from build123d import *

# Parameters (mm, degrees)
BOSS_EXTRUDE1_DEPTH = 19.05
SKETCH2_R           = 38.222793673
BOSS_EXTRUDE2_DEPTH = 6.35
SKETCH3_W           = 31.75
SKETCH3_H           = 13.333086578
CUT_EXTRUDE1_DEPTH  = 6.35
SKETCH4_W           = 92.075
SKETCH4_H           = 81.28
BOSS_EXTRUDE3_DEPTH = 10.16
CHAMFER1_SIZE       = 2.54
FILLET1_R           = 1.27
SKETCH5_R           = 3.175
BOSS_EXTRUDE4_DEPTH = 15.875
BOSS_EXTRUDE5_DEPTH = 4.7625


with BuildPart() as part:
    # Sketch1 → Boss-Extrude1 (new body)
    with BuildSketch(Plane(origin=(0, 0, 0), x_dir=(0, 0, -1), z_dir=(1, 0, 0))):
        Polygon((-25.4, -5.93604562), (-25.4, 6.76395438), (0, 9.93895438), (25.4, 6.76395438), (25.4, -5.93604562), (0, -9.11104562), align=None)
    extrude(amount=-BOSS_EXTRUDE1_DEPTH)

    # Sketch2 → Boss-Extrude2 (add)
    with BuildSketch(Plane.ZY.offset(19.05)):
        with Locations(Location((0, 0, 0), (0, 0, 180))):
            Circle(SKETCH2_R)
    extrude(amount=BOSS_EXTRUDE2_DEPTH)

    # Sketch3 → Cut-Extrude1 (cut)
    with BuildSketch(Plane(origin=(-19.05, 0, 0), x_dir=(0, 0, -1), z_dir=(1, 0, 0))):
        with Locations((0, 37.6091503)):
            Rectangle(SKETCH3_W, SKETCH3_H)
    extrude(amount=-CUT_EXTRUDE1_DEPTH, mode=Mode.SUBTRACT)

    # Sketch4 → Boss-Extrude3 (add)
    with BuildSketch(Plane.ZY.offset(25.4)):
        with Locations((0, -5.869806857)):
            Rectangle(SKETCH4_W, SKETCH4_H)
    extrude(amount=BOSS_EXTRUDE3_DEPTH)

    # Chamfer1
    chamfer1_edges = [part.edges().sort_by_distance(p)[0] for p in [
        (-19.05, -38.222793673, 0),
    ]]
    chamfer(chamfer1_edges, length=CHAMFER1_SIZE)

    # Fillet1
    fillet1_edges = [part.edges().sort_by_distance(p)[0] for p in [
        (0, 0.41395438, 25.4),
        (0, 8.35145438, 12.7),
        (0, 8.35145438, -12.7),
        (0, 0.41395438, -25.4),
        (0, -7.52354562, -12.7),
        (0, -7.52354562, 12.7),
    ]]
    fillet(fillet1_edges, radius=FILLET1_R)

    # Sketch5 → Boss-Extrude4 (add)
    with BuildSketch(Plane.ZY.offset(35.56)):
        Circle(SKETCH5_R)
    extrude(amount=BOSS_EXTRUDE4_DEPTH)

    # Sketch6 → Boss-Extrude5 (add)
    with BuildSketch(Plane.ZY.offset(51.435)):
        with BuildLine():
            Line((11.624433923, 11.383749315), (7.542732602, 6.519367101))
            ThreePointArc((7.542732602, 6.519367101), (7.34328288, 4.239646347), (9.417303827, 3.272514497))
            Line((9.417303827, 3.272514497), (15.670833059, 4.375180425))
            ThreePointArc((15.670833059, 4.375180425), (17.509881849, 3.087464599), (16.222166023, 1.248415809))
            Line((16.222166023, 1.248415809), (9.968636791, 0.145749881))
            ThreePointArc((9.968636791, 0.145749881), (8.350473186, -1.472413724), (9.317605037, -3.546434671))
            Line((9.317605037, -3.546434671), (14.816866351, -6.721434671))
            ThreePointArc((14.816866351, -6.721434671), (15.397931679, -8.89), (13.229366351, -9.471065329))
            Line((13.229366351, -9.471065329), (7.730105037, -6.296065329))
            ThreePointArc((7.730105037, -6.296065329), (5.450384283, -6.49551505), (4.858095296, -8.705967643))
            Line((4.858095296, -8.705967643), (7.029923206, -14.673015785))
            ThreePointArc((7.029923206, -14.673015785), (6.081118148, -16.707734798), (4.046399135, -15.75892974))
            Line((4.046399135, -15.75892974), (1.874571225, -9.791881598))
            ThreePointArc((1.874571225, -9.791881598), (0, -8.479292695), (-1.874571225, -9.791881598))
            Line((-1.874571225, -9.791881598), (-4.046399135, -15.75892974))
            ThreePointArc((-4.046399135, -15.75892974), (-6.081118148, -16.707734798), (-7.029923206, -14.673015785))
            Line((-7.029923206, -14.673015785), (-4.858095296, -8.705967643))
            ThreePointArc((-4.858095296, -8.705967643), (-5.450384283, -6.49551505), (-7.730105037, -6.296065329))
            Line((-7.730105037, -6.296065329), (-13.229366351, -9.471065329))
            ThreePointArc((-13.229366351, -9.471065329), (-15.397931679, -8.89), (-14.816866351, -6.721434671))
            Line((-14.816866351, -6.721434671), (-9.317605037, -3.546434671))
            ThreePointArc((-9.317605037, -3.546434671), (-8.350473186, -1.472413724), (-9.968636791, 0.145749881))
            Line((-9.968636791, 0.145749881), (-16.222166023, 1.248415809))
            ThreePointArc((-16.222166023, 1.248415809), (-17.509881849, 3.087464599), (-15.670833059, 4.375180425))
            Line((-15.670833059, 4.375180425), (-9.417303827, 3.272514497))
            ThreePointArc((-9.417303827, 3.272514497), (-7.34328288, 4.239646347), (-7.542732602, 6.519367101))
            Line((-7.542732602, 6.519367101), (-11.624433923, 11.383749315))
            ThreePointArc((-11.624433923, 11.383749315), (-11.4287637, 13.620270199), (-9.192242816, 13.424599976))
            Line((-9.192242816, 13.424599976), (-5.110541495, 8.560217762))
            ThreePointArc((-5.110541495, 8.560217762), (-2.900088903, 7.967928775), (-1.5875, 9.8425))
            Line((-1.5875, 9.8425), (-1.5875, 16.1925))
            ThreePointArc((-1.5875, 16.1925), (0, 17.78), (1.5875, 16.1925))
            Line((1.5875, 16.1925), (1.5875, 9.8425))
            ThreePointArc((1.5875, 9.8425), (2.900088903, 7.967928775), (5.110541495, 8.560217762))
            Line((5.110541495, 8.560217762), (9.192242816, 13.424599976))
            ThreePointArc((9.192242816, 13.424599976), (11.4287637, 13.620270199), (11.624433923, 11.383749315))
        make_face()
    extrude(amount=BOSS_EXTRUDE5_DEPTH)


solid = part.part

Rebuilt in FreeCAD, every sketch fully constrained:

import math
import FreeCAD as App
import Part
import Sketcher

V = App.Vector
Q = App.Units.Quantity


def edges_at(feature, points):
    """Names of the edges that pass closest to the given points."""
    edges = feature.Shape.Edges
    near = lambda p: min(range(len(edges)), key=lambda i: edges[i].distToShape(Part.Vertex(*p))[0])
    return sorted({f"Edge{near(p) + 1}" for p in points})


def add_polygon(sketch, points):
    """Adds a closed chain of lines whose ends are joined by coincident constraints."""
    first, n = sketch.GeometryCount, len(points)
    for a, b in zip(points, points[1:] + points[:1]):
        sketch.addGeometry(Part.LineSegment(App.Vector(*a, 0), App.Vector(*b, 0)), False)
    for i in range(n):
        sketch.addConstraint(Sketcher.Constraint("Coincident", first + i, 2, first + (i + 1) % n, 1))

doc = App.newDocument("Part")
body = doc.addObject("PartDesign::Body", "Body")

# Sketch on YZ plane
sketch1 = body.newObject("Sketcher::SketchObject", "Sketch")
sketch1.AttachmentSupport = (doc.getObject("YZ_Plane"), [""])
sketch1.MapMode = "FlatFace"
add_polygon(sketch1, [(7, 25), (-6, 25), (-9, 0), (-6, -25), (7, -25), (10, 0)])  # lines 0-5
sketch1.addConstraint([
    Sketcher.Constraint("Horizontal", 0),
    Sketcher.Constraint("Horizontal", 3),
    Sketcher.Constraint("Symmetric", 0, 2, 2, 2, -1),
    Sketcher.Constraint("PointOnObject", 1, 2, -1),
    Sketcher.Constraint("PointOnObject", 4, 2, -1),
    Sketcher.Constraint("Parallel", 1, 4),
    Sketcher.Constraint("Parallel", 2, 5),
    Sketcher.Constraint("DistanceX", 0, 2, 0, 1, Q("0.5 in")),
    Sketcher.Constraint("DistanceY", -1, 1, 0, 2, Q("1 in")),
    Sketcher.Constraint("DistanceX", 1, 2, 4, 2, Q("0.75 in")),
    Sketcher.Constraint("DistanceX", 0, 2, -1, 1, 5.936046),
])
pad1 = body.newObject("PartDesign::Pad", "Pad")
pad1.Profile = sketch1
pad1.Length = Q("0.75 in")
pad1.Reversed = True

# Sketch on YZ plane
sketch2 = body.newObject("Sketcher::SketchObject", "Sketch001")
sketch2.AttachmentSupport = (doc.getObject("YZ_Plane"), [""])
sketch2.MapMode = "FlatFace"
sketch2.AttachmentOffset = App.Placement(V(0, 0, -0.75 * 25.4), App.Rotation())
sketch2.addGeometry(Part.Circle(V(0, 0, 0), V(0, 0, 1), 38), False)
sketch2.addConstraint([
    Sketcher.Constraint("Coincident", 0, 3, -1, 1),
    Sketcher.Constraint("Diameter", 0, 76.445587),
])
pad2 = body.newObject("PartDesign::Pad", "Pad001")
pad2.Profile = sketch2
pad2.Length = Q("0.25 in")
pad2.Reversed = True

# Sketch on YZ plane
sketch3 = body.newObject("Sketcher::SketchObject", "Sketch002")
sketch3.AttachmentSupport = (doc.getObject("YZ_Plane"), [""])
sketch3.MapMode = "FlatFace"
sketch3.AttachmentOffset = App.Placement(V(0, 0, -0.75 * 25.4), App.Rotation())
add_polygon(sketch3, [(44, 16), (31, 16), (31, -16), (44, -16)])  # lines 0-3
sketch3.addConstraint([
    Sketcher.Constraint("Horizontal", 0),
    Sketcher.Constraint("Vertical", 1),
    Sketcher.Constraint("Horizontal", 2),
    Sketcher.Constraint("Vertical", 3),
    Sketcher.Constraint("DistanceY", 1, 2, 1, 1, Q("1.25 in")),
    Sketcher.Constraint("DistanceY", -1, 1, 0, 2, Q("0.625 in")),
    Sketcher.Constraint("DistanceX", 0, 2, 0, 1, 13.333087),
    Sketcher.Constraint("DistanceX", -1, 1, 0, 2, 30.942607),
])
pocket1 = body.newObject("PartDesign::Pocket", "Pocket")
pocket1.Profile = sketch3
pocket1.Length = Q("0.25 in")

# Sketch on YZ plane
sketch4 = body.newObject("Sketcher::SketchObject", "Sketch003")
sketch4.AttachmentSupport = (doc.getObject("YZ_Plane"), [""])
sketch4.MapMode = "FlatFace"
sketch4.AttachmentOffset = App.Placement(V(0, 0, -1 * 25.4), App.Rotation())
add_polygon(sketch4, [(35, -46), (-47, -46), (-47, 46), (35, 46)])  # lines 0-3
sketch4.addConstraint([
    Sketcher.Constraint("Horizontal", 0),
    Sketcher.Constraint("Vertical", 1),
    Sketcher.Constraint("Horizontal", 2),
    Sketcher.Constraint("Vertical", 3),
    Sketcher.Constraint("DistanceX", 0, 2, 0, 1, Q("3.2 in")),
    Sketcher.Constraint("DistanceY", 1, 1, 1, 2, Q("3.625 in")),
    Sketcher.Constraint("DistanceY", 0, 2, -1, 1, Q("1.8125 in")),
    Sketcher.Constraint("DistanceX", 0, 2, -1, 1, 46.509807),
])
pad3 = body.newObject("PartDesign::Pad", "Pad002")
pad3.Profile = sketch4
pad3.Length = Q("0.4 in")
pad3.Reversed = True
doc.recompute()

chamfer = body.newObject("PartDesign::Chamfer", "Chamfer")
chamfer.Base = (pad3, edges_at(pad3, [(-19.05, -38.223, 0)]))
chamfer.Size = Q("0.1 in")
doc.recompute()

fillet = body.newObject("PartDesign::Fillet", "Fillet")
fillet.Base = (chamfer, edges_at(chamfer, [
    (0, 0.414, 25.4),
    (0, 8.351, 12.7),
    (0, 8.351, -12.7),
    (0, 0.414, -25.4),
    (0, -7.524, -12.7),
    (0, -7.524, 12.7),
]))
fillet.Radius = Q("0.05 in")

# Sketch on YZ plane
sketch5 = body.newObject("Sketcher::SketchObject", "Sketch004")
sketch5.AttachmentSupport = (doc.getObject("YZ_Plane"), [""])
sketch5.MapMode = "FlatFace"
sketch5.AttachmentOffset = App.Placement(V(0, 0, -1.4 * 25.4), App.Rotation())
sketch5.addGeometry(Part.Circle(V(0, 0, 0), V(0, 0, 1), 3.2), False)
sketch5.addConstraint([
    Sketcher.Constraint("Coincident", 0, 3, -1, 1),
    Sketcher.Constraint("Diameter", 0, Q("0.25 in")),
])
pad4 = body.newObject("PartDesign::Pad", "Pad003")
pad4.Profile = sketch5
pad4.Length = Q("0.625 in")
pad4.Reversed = True

# Sketch on YZ plane
sketch6 = body.newObject("Sketcher::SketchObject", "Sketch005")
sketch6.AttachmentSupport = (doc.getObject("YZ_Plane"), [""])
sketch6.MapMode = "FlatFace"
sketch6.AttachmentOffset = App.Placement(V(0, 0, -2.025 * 25.4), App.Rotation())
sketch6.addGeometry([
    Part.LineSegment(V(6.5, 7.5, 0), V(11.4, 11.6, 0)),  # 0
    Part.ArcOfCircle(Part.Circle(V(12.4, 10.4, 0), V(0, 0, 1), 1.6), math.radians(-50), math.radians(130)),  # 1
    Part.LineSegment(V(13.4, 9.2, 0), V(8.6, 5.1, 0)),  # 2
    Part.ArcOfCircle(Part.Circle(V(9.8, 3.6, 0), V(0, 0, 1), 2), math.radians(130), math.radians(270)),  # 3
    Part.LineSegment(V(9.8, 1.6, 0), V(16.2, 1.6, 0)),  # 4
    Part.ArcOfCircle(Part.Circle(V(16.2, 0, 0), V(0, 0, 1), 1.6), math.radians(-90), math.radians(90)),  # 5
    Part.LineSegment(V(16.2, -1.6, 0), V(9.8, -1.6, 0)),  # 6
    Part.ArcOfCircle(Part.Circle(V(9.8, -3.6, 0), V(0, 0, 1), 2), math.radians(90), math.radians(230)),  # 7
    Part.LineSegment(V(8.6, -5.1, 0), V(13.4, -9.2, 0)),  # 8
    Part.ArcOfCircle(Part.Circle(V(12.4, -10.4, 0), V(0, 0, 1), 1.6), math.radians(-130), math.radians(50)),  # 9
    Part.LineSegment(V(11.4, -11.6, 0), V(6.5, -7.5, 0)),  # 10
    Part.ArcOfCircle(Part.Circle(V(5.2, -9.1, 0), V(0, 0, 1), 2), math.radians(50), math.radians(190)),  # 11
    Part.LineSegment(V(3.3, -9.4, 0), V(4.4, -15.7, 0)),  # 12
    Part.ArcOfCircle(Part.Circle(V(2.8, -15.9, 0), V(0, 0, 1), 1.6), math.radians(-170), math.radians(10)),  # 13
    Part.LineSegment(V(1.2, -16.2, 0), V(0.1, -10, 0)),  # 14
    Part.ArcOfCircle(Part.Circle(V(-1.8, -10.3, 0), V(0, 0, 1), 2), math.radians(10), math.radians(150)),  # 15
    Part.LineSegment(V(-3.5, -9.3, 0), V(-6.7, -14.8, 0)),  # 16
    Part.ArcOfCircle(Part.Circle(V(-8.1, -14, 0), V(0, 0, 1), 1.6), math.radians(150), math.radians(330)),  # 17
    Part.LineSegment(V(-9.5, -13.2, 0), V(-6.3, -7.7, 0)),  # 18
    Part.ArcOfCircle(Part.Circle(V(-8, -6.7, 0), V(0, 0, 1), 2), math.radians(-30), math.radians(110)),  # 19
    Part.LineSegment(V(-8.7, -4.9, 0), V(-14.7, -7, 0)),  # 20
    Part.ArcOfCircle(Part.Circle(V(-15.2, -5.5, 0), V(0, 0, 1), 1.6), math.radians(110), math.radians(290)),  # 21
    Part.LineSegment(V(-15.8, -4, 0), V(-9.8, -1.9, 0)),  # 22
    Part.ArcOfCircle(Part.Circle(V(-10.5, 0, 0), V(0, 0, 1), 2), math.radians(-70), math.radians(70)),  # 23
    Part.LineSegment(V(-9.8, 1.9, 0), V(-15.8, 4, 0)),  # 24
    Part.ArcOfCircle(Part.Circle(V(-15.2, 5.5, 0), V(0, 0, 1), 1.6), math.radians(70), math.radians(250)),  # 25
    Part.LineSegment(V(-14.7, 7, 0), V(-8.7, 4.9, 0)),  # 26
    Part.ArcOfCircle(Part.Circle(V(-8, 6.7, 0), V(0, 0, 1), 2), math.radians(-110), math.radians(30)),  # 27
    Part.LineSegment(V(-6.3, 7.7, 0), V(-9.5, 13.2, 0)),  # 28
    Part.ArcOfCircle(Part.Circle(V(-8.1, 14, 0), V(0, 0, 1), 1.6), math.radians(30), math.radians(210)),  # 29
    Part.LineSegment(V(-6.7, 14.8, 0), V(-3.5, 9.3, 0)),  # 30
    Part.ArcOfCircle(Part.Circle(V(-1.8, 10.3, 0), V(0, 0, 1), 2), math.radians(-150), math.radians(-10)),  # 31
    Part.LineSegment(V(0.1, 10, 0), V(1.2, 16.2, 0)),  # 32
    Part.ArcOfCircle(Part.Circle(V(2.8, 15.9, 0), V(0, 0, 1), 1.6), math.radians(-10), math.radians(170)),  # 33
    Part.LineSegment(V(4.4, 15.7, 0), V(3.3, 9.4, 0)),  # 34
    Part.ArcOfCircle(Part.Circle(V(5.2, 9.1, 0), V(0, 0, 1), 2), math.radians(170), math.radians(310)),  # 35
], False)
sketch6.addConstraint([
    Sketcher.Constraint("Tangent", 0, 2, 1, 2),
    Sketcher.Constraint("Tangent", 1, 1, 2, 1),
    Sketcher.Constraint("Tangent", 2, 2, 3, 1),
    Sketcher.Constraint("Tangent", 3, 2, 4, 1),
    Sketcher.Constraint("Tangent", 4, 2, 5, 2),
    Sketcher.Constraint("Tangent", 5, 1, 6, 1),
    Sketcher.Constraint("Tangent", 6, 2, 7, 1),
    Sketcher.Constraint("Tangent", 7, 2, 8, 1),
    Sketcher.Constraint("Tangent", 8, 2, 9, 2),
    Sketcher.Constraint("Tangent", 9, 1, 10, 1),
    Sketcher.Constraint("Tangent", 10, 2, 11, 1),
    Sketcher.Constraint("Tangent", 11, 2, 12, 1),
    Sketcher.Constraint("Tangent", 12, 2, 13, 2),
    Sketcher.Constraint("Tangent", 13, 1, 14, 1),
    Sketcher.Constraint("Tangent", 14, 2, 15, 1),
    Sketcher.Constraint("Tangent", 15, 2, 16, 1),
    Sketcher.Constraint("Tangent", 16, 2, 17, 2),
    Sketcher.Constraint("Tangent", 17, 1, 18, 1),
    Sketcher.Constraint("Tangent", 18, 2, 19, 1),
    Sketcher.Constraint("Tangent", 19, 2, 20, 1),
    Sketcher.Constraint("Tangent", 20, 2, 21, 2),
    Sketcher.Constraint("Tangent", 21, 1, 22, 1),
    Sketcher.Constraint("Tangent", 22, 2, 23, 1),
    Sketcher.Constraint("Tangent", 23, 2, 24, 1),
    Sketcher.Constraint("Tangent", 24, 2, 25, 2),
    Sketcher.Constraint("Tangent", 25, 1, 26, 1),
    Sketcher.Constraint("Tangent", 26, 2, 27, 1),
    Sketcher.Constraint("Tangent", 27, 2, 28, 1),
    Sketcher.Constraint("Tangent", 28, 2, 29, 2),
    Sketcher.Constraint("Tangent", 29, 1, 30, 1),
    Sketcher.Constraint("Tangent", 30, 2, 31, 1),
    Sketcher.Constraint("Tangent", 31, 2, 32, 1),
    Sketcher.Constraint("Tangent", 32, 2, 33, 2),
    Sketcher.Constraint("Tangent", 33, 1, 34, 1),
    Sketcher.Constraint("Tangent", 34, 2, 35, 1),
    Sketcher.Constraint("Tangent", 35, 2, 0, 1),
    Sketcher.Constraint("Horizontal", 4),
    Sketcher.Constraint("Horizontal", 6),
    Sketcher.Constraint("Equal", 1, 5),
    Sketcher.Constraint("Equal", 3, 7),
    Sketcher.Constraint("Equal", 5, 9),
    Sketcher.Constraint("Equal", 7, 11),
    Sketcher.Constraint("Equal", 9, 13),
    Sketcher.Constraint("Equal", 11, 15),
    Sketcher.Constraint("Equal", 13, 17),
    Sketcher.Constraint("Equal", 15, 19),
    Sketcher.Constraint("Equal", 17, 21),
    Sketcher.Constraint("Equal", 19, 23),
    Sketcher.Constraint("Equal", 21, 25),
    Sketcher.Constraint("Equal", 23, 27),
    Sketcher.Constraint("Equal", 25, 29),
    Sketcher.Constraint("Equal", 27, 31),
    Sketcher.Constraint("Equal", 29, 33),
    Sketcher.Constraint("Equal", 31, 35),
    Sketcher.Constraint("Symmetric", 3, 3, 7, 3, -1),
    Sketcher.Constraint("Symmetric", 1, 3, 9, 3, -1),
    Sketcher.Constraint("Symmetric", 21, 3, 25, 3, -1),
    Sketcher.Constraint("Symmetric", 19, 3, 27, 3, -1),
    Sketcher.Constraint("Symmetric", 17, 3, 29, 3, -1),
    Sketcher.Constraint("Symmetric", 15, 3, 31, 3, -1),
    Sketcher.Constraint("Symmetric", 13, 3, 33, 3, -1),
    Sketcher.Constraint("Symmetric", 11, 3, 35, 3, -1),
    Sketcher.Constraint("PointOnObject", 23, 3, -1),
    Sketcher.Constraint("Parallel", 0, 2),
    Sketcher.Constraint("Parallel", 12, 14),
    Sketcher.Constraint("Parallel", 16, 18),
    Sketcher.Constraint("Parallel", 20, 22),
    Sketcher.Constraint("Equal", 0, 2),
    Sketcher.Constraint("Equal", 10, 12),
    Sketcher.Constraint("Equal", 12, 14),
    Sketcher.Constraint("Equal", 14, 16),
    Sketcher.Constraint("Equal", 16, 18),
    Sketcher.Constraint("Equal", 18, 20),
    Sketcher.Constraint("Equal", 20, 22),
    Sketcher.Constraint("Angle", 0, Q("40 deg")),
    Sketcher.Constraint("Angle", 12, Q("-80 deg")),
    Sketcher.Constraint("Angle", 16, Q("-120 deg")),
    Sketcher.Constraint("Radius", 1, Q("0.0625 in")),
    Sketcher.Constraint("DistanceX", 4, 1, 4, 2, Q("0.25 in")),
    Sketcher.Constraint("Distance", 0, Q("0.25 in")),
    Sketcher.Constraint("DistanceX", -1, 1, 3, 3, Q("0.3875 in")),
    Sketcher.Constraint("Radius", 3, 1.994877),
])
pad5 = body.newObject("PartDesign::Pad", "Pad004")
pad5.Profile = sketch6
pad5.Length = Q("0.1875 in")
pad5.Reversed = True

doc.recompute()
